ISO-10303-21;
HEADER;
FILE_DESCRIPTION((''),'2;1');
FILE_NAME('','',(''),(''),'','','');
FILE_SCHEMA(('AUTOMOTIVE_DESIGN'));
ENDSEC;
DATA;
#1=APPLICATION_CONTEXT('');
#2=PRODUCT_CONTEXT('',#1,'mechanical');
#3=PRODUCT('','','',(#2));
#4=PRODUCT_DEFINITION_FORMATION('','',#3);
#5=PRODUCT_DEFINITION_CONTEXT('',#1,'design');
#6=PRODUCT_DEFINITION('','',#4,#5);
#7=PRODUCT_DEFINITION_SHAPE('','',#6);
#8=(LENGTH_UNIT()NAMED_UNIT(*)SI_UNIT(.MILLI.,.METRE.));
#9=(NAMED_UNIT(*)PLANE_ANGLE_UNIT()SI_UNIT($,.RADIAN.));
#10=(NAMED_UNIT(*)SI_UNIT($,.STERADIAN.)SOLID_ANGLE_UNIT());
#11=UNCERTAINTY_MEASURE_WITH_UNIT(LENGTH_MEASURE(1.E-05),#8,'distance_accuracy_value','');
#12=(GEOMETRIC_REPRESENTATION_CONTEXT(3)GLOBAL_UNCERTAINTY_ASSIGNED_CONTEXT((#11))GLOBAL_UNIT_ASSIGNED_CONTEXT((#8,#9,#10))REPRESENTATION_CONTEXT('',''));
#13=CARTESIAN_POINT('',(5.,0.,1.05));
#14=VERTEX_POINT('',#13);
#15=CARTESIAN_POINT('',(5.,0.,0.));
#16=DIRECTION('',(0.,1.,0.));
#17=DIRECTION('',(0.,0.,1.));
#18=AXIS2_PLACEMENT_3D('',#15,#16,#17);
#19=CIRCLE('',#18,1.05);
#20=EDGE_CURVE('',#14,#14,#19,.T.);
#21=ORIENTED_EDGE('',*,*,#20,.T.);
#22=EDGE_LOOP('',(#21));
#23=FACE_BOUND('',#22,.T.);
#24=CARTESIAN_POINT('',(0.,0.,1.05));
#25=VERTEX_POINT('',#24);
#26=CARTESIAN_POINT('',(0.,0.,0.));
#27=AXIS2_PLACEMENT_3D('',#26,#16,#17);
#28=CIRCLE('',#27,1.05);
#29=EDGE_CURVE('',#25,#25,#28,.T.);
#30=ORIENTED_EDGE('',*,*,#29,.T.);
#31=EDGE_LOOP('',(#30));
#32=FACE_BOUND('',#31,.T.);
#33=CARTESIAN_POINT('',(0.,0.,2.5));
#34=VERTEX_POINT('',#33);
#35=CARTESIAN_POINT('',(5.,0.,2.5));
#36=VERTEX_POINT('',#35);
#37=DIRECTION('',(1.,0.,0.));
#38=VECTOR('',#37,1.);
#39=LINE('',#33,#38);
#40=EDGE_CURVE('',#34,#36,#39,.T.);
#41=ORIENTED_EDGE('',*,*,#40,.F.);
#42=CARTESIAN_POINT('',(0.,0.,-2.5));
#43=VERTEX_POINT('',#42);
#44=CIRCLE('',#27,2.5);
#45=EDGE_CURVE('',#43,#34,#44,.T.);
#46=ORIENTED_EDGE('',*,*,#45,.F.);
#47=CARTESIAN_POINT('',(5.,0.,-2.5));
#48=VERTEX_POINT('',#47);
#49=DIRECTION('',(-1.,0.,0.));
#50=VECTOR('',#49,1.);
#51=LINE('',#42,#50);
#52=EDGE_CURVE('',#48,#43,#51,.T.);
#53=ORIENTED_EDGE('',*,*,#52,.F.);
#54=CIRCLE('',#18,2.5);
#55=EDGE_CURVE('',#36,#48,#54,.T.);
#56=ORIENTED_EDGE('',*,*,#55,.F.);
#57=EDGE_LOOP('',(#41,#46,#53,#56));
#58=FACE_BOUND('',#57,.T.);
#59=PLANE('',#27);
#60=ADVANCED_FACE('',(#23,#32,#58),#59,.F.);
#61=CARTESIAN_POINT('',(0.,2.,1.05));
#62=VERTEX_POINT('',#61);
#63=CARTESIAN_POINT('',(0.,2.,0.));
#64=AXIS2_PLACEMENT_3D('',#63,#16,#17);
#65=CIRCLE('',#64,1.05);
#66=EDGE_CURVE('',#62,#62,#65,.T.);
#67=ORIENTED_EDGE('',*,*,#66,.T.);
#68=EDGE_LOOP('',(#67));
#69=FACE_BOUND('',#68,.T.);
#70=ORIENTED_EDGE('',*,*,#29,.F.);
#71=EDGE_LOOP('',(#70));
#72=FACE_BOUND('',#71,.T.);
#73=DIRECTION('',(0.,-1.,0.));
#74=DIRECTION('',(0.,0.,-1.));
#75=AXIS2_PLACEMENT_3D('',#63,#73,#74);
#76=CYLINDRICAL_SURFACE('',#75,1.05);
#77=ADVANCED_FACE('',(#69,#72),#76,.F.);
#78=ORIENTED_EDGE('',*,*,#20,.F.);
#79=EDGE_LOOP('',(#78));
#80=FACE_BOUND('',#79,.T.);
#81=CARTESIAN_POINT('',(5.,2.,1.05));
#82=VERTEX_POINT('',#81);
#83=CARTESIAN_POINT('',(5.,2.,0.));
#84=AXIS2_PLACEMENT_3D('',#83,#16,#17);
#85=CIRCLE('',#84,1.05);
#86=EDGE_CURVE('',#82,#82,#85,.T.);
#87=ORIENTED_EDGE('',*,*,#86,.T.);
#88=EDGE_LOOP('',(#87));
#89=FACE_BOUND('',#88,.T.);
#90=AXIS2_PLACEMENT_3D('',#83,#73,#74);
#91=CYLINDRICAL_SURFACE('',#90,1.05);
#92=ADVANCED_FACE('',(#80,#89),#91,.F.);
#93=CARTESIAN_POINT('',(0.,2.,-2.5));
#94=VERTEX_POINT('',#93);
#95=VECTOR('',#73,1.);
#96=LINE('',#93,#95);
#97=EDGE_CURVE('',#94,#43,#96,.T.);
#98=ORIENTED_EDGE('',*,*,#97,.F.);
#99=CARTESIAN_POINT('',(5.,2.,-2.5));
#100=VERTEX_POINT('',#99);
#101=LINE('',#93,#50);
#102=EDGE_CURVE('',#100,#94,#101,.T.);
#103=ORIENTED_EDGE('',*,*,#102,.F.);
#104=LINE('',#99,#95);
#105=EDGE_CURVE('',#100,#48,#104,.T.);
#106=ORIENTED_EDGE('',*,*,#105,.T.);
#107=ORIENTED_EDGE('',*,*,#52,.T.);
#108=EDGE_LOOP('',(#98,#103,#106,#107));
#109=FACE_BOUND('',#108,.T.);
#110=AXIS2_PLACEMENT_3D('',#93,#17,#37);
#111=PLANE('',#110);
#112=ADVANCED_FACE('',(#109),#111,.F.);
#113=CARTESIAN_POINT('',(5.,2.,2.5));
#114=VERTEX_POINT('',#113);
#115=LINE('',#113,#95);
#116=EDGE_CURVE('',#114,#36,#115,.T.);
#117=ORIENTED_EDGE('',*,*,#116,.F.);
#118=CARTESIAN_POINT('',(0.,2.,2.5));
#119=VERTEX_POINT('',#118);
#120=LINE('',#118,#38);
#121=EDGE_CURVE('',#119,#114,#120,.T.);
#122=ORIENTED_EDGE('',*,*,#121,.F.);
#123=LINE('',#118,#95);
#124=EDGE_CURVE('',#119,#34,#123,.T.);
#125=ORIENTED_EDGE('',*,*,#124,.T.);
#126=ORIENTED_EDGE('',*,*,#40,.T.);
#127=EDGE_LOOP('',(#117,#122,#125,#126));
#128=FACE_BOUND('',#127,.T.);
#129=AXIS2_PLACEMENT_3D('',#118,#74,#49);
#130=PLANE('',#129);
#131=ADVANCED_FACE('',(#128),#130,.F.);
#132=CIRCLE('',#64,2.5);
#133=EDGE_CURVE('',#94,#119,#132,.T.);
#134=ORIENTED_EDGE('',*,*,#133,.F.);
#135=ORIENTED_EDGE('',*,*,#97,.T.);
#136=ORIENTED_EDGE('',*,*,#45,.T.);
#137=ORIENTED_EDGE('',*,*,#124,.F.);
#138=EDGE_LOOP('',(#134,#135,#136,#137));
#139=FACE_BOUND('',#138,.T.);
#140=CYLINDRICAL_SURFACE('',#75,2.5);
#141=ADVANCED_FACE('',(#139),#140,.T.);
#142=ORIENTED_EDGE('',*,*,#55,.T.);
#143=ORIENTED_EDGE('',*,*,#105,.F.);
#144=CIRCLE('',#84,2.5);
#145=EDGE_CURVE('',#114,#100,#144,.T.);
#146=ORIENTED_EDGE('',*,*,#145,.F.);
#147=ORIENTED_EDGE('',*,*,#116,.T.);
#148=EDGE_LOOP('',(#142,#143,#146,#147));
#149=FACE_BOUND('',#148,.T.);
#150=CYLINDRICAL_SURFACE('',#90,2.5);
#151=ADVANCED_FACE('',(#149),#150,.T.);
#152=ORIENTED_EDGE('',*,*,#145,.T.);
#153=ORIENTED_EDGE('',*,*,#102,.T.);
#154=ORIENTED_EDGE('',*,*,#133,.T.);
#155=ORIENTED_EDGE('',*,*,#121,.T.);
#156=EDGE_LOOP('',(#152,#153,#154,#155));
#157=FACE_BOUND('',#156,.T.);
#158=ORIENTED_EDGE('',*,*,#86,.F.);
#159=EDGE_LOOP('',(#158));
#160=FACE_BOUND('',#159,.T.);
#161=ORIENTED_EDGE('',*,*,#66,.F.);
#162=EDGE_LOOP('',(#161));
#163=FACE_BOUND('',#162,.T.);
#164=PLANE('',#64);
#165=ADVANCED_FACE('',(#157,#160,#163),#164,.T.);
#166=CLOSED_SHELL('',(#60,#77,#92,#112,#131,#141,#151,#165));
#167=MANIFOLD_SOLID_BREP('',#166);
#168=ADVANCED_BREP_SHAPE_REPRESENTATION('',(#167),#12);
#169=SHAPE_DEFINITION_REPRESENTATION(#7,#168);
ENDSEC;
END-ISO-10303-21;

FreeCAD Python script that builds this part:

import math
import FreeCAD as App
import Part
import Sketcher
from FreeCAD import Vector
Q = App.Units.Quantity

doc = App.newDocument("Part")
body = doc.addObject("PartDesign::Body", "Body")

# Sketch on XZ plane
sketch1 = body.newObject("Sketcher::SketchObject", "Sketch")
sketch1.AttachmentSupport = (doc.getObject("XZ_Plane"), [""])
sketch1.MapMode = "FlatFace"
sketch1.addGeometry(Part.LineSegment(Vector(5, -2.5, 0), Vector(0, -2.5, 0)), False)
sketch1.addGeometry(Part.ArcOfCircle(Part.Circle(Vector(0, 0, 0), Vector(0, 0, 1), 2.5), math.radians(90), math.radians(270)), False)
sketch1.addGeometry(Part.LineSegment(Vector(0, 2.5, 0), Vector(5, 2.5, 0)), False)
sketch1.addGeometry(Part.ArcOfCircle(Part.Circle(Vector(5, 0, 0), Vector(0, 0, 1), 2.5), math.radians(-90), math.radians(90)), False)
sketch1.addGeometry(Part.Circle(Vector(5, 0, 0), Vector(0, 0, 1), 1.05), False)
sketch1.addGeometry(Part.Circle(Vector(0, 0, 0), Vector(0, 0, 1), 1.05), False)
sketch1.addConstraint(Sketcher.Constraint("Tangent", 0, 2, 1, 2))
sketch1.addConstraint(Sketcher.Constraint("Tangent", 1, 1, 2, 1))
sketch1.addConstraint(Sketcher.Constraint("Tangent", 2, 2, 3, 2))
sketch1.addConstraint(Sketcher.Constraint("Tangent", 3, 1, 0, 1))
sketch1.addConstraint(Sketcher.Constraint("Horizontal", 0))
sketch1.addConstraint(Sketcher.Constraint("Horizontal", 2))
sketch1.addConstraint(Sketcher.Constraint("Coincident", 1, 3, -1, 1))
sketch1.addConstraint(Sketcher.Constraint("Coincident", 5, 3, -1, 1))
sketch1.addConstraint(Sketcher.Constraint("Coincident", 4, 3, 3, 3))
sketch1.addConstraint(Sketcher.Constraint("Equal", 4, 5))
sketch1.addConstraint(Sketcher.Constraint("Diameter", 4, Q("2.1 mm")))
sketch1.addConstraint(Sketcher.Constraint("Radius", 1, Q("2.5 mm")))
sketch1.addConstraint(Sketcher.Constraint("DistanceX", 0, 2, 0, 1, Q("5 mm")))
pad1 = body.newObject("PartDesign::Pad", "Pad")
pad1.Profile = sketch1
pad1.Length = 2
pad1.Reversed = True

doc.recompute()
